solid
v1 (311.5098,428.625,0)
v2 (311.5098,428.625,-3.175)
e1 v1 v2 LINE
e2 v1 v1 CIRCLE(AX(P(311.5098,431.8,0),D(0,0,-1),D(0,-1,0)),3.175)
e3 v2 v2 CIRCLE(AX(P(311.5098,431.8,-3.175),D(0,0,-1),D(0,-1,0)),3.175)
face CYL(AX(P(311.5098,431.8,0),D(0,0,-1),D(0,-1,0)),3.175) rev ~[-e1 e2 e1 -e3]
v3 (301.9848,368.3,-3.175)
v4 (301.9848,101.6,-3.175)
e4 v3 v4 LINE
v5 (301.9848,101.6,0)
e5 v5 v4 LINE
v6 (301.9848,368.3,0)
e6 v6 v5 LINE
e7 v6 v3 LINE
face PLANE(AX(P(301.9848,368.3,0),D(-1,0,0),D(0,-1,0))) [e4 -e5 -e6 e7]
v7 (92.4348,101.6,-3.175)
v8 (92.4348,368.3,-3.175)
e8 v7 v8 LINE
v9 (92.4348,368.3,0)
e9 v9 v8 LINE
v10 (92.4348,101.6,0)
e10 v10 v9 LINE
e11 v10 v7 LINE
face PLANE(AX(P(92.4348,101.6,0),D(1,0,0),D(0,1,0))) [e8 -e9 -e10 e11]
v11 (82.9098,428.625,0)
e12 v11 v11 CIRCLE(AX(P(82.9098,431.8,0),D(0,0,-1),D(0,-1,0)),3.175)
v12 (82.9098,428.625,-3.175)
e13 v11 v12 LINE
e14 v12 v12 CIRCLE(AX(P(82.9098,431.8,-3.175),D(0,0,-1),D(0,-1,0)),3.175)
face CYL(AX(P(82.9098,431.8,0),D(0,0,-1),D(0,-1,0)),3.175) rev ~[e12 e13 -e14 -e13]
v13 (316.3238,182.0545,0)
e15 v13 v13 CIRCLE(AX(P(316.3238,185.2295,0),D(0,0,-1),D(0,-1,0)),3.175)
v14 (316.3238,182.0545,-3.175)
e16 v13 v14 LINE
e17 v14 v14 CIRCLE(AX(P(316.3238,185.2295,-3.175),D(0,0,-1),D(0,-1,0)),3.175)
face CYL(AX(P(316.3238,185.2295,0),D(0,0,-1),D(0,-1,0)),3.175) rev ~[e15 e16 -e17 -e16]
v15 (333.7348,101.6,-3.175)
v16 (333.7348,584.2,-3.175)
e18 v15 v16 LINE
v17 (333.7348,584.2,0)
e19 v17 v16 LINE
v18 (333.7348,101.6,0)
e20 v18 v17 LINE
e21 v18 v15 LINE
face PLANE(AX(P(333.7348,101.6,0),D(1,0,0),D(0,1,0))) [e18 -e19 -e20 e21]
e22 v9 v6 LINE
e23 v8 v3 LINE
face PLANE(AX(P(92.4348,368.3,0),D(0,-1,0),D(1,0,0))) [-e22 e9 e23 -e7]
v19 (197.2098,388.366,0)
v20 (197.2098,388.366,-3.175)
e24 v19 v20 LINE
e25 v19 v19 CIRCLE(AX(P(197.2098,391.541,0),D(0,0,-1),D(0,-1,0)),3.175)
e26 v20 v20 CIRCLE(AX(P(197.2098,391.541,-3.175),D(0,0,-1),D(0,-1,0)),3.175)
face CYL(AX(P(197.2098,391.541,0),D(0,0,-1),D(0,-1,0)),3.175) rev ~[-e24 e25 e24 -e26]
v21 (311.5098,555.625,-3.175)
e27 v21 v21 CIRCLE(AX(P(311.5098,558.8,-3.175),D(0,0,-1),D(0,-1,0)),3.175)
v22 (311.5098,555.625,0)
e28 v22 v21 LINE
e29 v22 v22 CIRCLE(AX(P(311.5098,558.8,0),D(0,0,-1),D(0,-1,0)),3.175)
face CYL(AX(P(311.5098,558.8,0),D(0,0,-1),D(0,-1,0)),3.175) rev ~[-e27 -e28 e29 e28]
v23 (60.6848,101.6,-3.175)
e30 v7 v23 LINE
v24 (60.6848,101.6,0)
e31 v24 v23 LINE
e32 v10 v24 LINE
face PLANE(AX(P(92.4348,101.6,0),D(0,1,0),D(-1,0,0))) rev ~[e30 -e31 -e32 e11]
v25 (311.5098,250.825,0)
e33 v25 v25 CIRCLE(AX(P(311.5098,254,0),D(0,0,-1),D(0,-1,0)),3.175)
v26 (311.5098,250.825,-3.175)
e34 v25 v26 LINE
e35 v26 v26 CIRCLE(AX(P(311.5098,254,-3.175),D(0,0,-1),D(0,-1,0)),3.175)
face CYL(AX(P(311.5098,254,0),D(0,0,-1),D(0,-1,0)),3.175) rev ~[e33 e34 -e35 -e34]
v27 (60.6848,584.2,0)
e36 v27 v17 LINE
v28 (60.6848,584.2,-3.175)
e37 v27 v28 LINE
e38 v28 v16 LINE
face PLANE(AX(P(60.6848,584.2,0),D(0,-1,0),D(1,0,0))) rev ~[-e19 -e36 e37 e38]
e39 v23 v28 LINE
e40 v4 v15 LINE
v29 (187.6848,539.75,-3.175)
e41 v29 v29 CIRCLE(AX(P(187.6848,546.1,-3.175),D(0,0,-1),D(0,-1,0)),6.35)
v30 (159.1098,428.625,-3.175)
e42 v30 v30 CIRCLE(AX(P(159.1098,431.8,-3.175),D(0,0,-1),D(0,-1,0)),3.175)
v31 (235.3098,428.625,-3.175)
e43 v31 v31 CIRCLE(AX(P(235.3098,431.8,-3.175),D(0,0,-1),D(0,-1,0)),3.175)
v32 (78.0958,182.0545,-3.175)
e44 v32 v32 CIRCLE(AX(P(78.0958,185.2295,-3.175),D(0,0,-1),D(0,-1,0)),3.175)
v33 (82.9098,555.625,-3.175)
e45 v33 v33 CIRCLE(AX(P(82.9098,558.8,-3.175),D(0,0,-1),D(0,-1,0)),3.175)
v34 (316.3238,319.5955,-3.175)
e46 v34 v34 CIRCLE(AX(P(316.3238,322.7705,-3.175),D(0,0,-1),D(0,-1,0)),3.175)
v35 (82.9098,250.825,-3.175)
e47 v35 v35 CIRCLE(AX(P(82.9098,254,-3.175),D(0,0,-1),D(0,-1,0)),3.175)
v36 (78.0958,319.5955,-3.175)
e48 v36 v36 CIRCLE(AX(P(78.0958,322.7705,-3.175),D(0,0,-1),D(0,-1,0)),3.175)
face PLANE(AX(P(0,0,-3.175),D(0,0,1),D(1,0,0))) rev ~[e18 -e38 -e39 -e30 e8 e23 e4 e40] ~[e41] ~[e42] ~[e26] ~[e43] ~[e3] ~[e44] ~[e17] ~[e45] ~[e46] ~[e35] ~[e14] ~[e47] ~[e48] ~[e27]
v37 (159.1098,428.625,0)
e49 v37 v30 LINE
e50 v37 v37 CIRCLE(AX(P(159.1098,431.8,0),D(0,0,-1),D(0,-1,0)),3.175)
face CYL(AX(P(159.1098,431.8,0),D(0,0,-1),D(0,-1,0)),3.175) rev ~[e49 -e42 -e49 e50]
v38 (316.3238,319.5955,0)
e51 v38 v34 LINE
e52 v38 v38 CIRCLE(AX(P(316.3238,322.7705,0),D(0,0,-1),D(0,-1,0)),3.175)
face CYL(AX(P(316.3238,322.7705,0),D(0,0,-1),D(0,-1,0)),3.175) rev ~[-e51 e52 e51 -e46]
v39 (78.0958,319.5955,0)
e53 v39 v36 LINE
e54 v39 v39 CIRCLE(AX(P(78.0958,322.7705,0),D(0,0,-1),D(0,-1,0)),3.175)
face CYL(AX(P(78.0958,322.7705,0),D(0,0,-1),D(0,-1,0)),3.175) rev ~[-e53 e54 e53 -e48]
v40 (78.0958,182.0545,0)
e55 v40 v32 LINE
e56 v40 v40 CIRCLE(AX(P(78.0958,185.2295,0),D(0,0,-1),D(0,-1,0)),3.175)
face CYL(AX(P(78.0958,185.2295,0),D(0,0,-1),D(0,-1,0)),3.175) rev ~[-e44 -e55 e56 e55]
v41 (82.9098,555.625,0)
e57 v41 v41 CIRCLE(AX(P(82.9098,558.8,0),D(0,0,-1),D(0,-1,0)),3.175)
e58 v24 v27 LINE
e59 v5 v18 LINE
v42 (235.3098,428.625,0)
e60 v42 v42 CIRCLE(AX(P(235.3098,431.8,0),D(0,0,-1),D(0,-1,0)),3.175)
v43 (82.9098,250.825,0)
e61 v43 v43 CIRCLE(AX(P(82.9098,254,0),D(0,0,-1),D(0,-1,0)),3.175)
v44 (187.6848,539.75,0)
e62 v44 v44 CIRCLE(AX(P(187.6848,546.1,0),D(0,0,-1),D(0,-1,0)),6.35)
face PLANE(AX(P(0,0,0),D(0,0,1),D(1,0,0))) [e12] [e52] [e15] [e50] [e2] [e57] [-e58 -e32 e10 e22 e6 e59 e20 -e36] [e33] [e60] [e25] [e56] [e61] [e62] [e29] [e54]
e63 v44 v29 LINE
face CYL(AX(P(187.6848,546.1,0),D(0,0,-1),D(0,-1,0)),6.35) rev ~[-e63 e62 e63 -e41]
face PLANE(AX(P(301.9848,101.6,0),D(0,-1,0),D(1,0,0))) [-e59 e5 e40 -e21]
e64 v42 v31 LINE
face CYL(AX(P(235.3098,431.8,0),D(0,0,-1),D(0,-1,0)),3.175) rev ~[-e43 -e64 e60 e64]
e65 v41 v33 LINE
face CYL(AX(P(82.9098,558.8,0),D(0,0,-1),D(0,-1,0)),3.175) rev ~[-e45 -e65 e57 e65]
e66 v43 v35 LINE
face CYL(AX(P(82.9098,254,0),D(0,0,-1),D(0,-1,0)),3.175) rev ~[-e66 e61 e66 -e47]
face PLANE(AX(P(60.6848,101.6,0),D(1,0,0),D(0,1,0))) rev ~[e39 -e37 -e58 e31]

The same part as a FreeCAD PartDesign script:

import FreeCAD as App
import Part
import Sketcher
Q = App.Units.Quantity

doc = App.newDocument("Part")
body = doc.addObject("PartDesign::Body", "Body")

# Sketch on XY plane
sketch1 = body.newObject("Sketcher::SketchObject", "Sketch")
sketch1.AttachmentSupport = (doc.getObject("XY_Plane"), [""])
sketch1.MapMode = "FlatFace"
sketch1.addGeometry([
    Part.LineSegment(App.Vector(301.9848, 101.6, 0), App.Vector(333.7348, 101.6, 0)),  # 0
    Part.LineSegment(App.Vector(333.7348, 101.6, 0), App.Vector(333.7348, 584.2, 0)),  # 1
    Part.LineSegment(App.Vector(333.7348, 584.2, 0), App.Vector(60.6848, 584.2, 0)),  # 2
    Part.LineSegment(App.Vector(60.6848, 584.2, 0), App.Vector(60.6848, 101.6, 0)),  # 3
    Part.LineSegment(App.Vector(60.6848, 101.6, 0), App.Vector(92.4348, 101.6, 0)),  # 4
    Part.LineSegment(App.Vector(92.4348, 101.6, 0), App.Vector(92.4348, 368.3, 0)),  # 5
    Part.LineSegment(App.Vector(92.4348, 368.3, 0), App.Vector(301.9848, 368.3, 0)),  # 6
    Part.LineSegment(App.Vector(301.9848, 368.3, 0), App.Vector(301.9848, 101.6, 0)),  # 7
], False)
sketch1.addConstraint([
    Sketcher.Constraint("Coincident", 0, 2, 1, 1),
    Sketcher.Constraint("Coincident", 1, 2, 2, 1),
    Sketcher.Constraint("Coincident", 2, 2, 3, 1),
    Sketcher.Constraint("Coincident", 3, 2, 4, 1),
    Sketcher.Constraint("Coincident", 4, 2, 5, 1),
    Sketcher.Constraint("Coincident", 5, 2, 6, 1),
    Sketcher.Constraint("Coincident", 6, 2, 7, 1),
    Sketcher.Constraint("Coincident", 7, 2, 0, 1),
    Sketcher.Constraint("Horizontal", 0),
    Sketcher.Constraint("Vertical", 1),
    Sketcher.Constraint("Horizontal", 2),
    Sketcher.Constraint("Vertical", 3),
    Sketcher.Constraint("Horizontal", 4),
    Sketcher.Constraint("Vertical", 5),
    Sketcher.Constraint("Horizontal", 6),
    Sketcher.Constraint("Vertical", 7),
    Sketcher.Constraint("Horizontal", 0, 2, 3, 2),
    Sketcher.Constraint("Equal", 0, 4),
    Sketcher.Constraint("DistanceY", 1, 1, 1, 2, Q("19 in")),
    Sketcher.Constraint("DistanceY", 5, 1, 5, 2, Q("10.5 in")),
    Sketcher.Constraint("DistanceX", 0, 1, 0, 2, Q("1.25 in")),
    Sketcher.Constraint("DistanceX", 2, 2, 2, 1, Q("10.75 in")),
    Sketcher.Constraint("DistanceY", -1, 1, 0, 2, Q("4 in")),
    Sketcher.Constraint("DistanceX", -1, 1, 0, 2, 333.7348),
])
pad1 = body.newObject("PartDesign::Pad", "Pad")
pad1.Profile = sketch1
pad1.Length = Q("0.125 in")
pad1.Reversed = True

# Sketch on XY plane
sketch2 = body.newObject("Sketcher::SketchObject", "Sketch001")
sketch2.AttachmentSupport = (doc.getObject("XY_Plane"), [""])
sketch2.MapMode = "FlatFace"
sketch2.addGeometry([
    Part.Circle(App.Vector(197.2098, 254, 0), App.Vector(0, 0, 1), 3.175),  # 0
    Part.Circle(App.Vector(197.2098, 391.541, 0), App.Vector(0, 0, 1), 3.175),  # 1
    Part.Circle(App.Vector(78.0958, 322.7705, 0), App.Vector(0, 0, 1), 3.175),  # 2
    Part.Circle(App.Vector(78.0958, 185.2295, 0), App.Vector(0, 0, 1), 3.175),  # 3
    Part.Circle(App.Vector(197.2098, 116.459, 0), App.Vector(0, 0, 1), 3.175),  # 4
    Part.Circle(App.Vector(316.3238, 185.2295, 0), App.Vector(0, 0, 1), 3.175),  # 5
    Part.Circle(App.Vector(316.3238, 322.7705, 0), App.Vector(0, 0, 1), 3.175),  # 6
], False)
sketch2.addConstraint([
    Sketcher.Constraint("Equal", 0, 1),
    Sketcher.Constraint("Equal", 1, 2),
    Sketcher.Constraint("Equal", 2, 3),
    Sketcher.Constraint("Equal", 3, 4),
    Sketcher.Constraint("Equal", 4, 5),
    Sketcher.Constraint("Equal", 5, 6),
    Sketcher.Constraint("Horizontal", 3, 3, 5, 3),
    Sketcher.Constraint("Horizontal", 2, 3, 6, 3),
    Sketcher.Constraint("Vertical", 0, 3, 1, 3),
    Sketcher.Constraint("Vertical", 2, 3, 3, 3),
    Sketcher.Constraint("Vertical", 1, 3, 4, 3),
    Sketcher.Constraint("Vertical", 5, 3, 6, 3),
    Sketcher.Constraint("Diameter", 0, Q("0.25 in")),
    Sketcher.Constraint("DistanceY", -1, 1, 0, 3, Q("10 in")),
    Sketcher.Constraint("DistanceY", 4, 3, 1, 3, Q("10.83 in")),
    Sketcher.Constraint("DistanceY", -1, 1, 1, 3, Q("15.415 in")),
    Sketcher.Constraint("DistanceY", 3, 3, 2, 3, Q("5.415 in")),
    Sketcher.Constraint("DistanceY", -1, 1, 2, 3, Q("12.7075 in")),
    Sketcher.Constraint("DistanceX", -1, 1, 5, 3, Q("12.4537 in")),
    Sketcher.Constraint("DistanceX", -1, 1, 0, 3, 197.2098),
    Sketcher.Constraint("DistanceX", -1, 1, 2, 3, 78.0958),
])
doc.recompute()
hole = body.newObject("PartDesign::Hole", "Hole")
hole.Profile = sketch2
hole.ThreadType = "None"
hole.Diameter = Q("0.25 in")
hole.DepthType = "Dimension"
hole.Depth = Q("1 in")
hole.DrillPoint = "Angled"
hole.DrillPointAngle = 118

# Sketch on XY plane
sketch3 = body.newObject("Sketcher::SketchObject", "Sketch002")
sketch3.AttachmentSupport = (doc.getObject("XY_Plane"), [""])
sketch3.MapMode = "FlatFace"
sketch3.addGeometry(Part.Circle(App.Vector(187.6848, 546.1, 0), App.Vector(0, 0, 1), 6.35), False)
sketch3.addConstraint([
    Sketcher.Constraint("Diameter", 0, Q("0.5 in")),
    Sketcher.Constraint("DistanceY", -1, 1, 0, 3, Q("21.5 in")),
    Sketcher.Constraint("DistanceX", -1, 1, 0, 3, 187.6848),
])
doc.recompute()
hole2 = body.newObject("PartDesign::Hole", "Hole001")
hole2.Profile = sketch3
hole2.ThreadType = "None"
hole2.Diameter = Q("0.5 in")
hole2.DepthType = "Dimension"
hole2.Depth = Q("1 in")
hole2.DrillPoint = "Angled"
hole2.DrillPointAngle = 118

# Sketch on XY plane
sketch4 = body.newObject("Sketcher::SketchObject", "Sketch003")
sketch4.AttachmentSupport = (doc.getObject("XY_Plane"), [""])
sketch4.MapMode = "FlatFace"
sketch4.addGeometry([
    Part.Circle(App.Vector(311.5098, 254, 0), App.Vector(0, 0, 1), 3.175),  # 0
    Part.Circle(App.Vector(311.5098, 558.8, 0), App.Vector(0, 0, 1), 3.175),  # 1
    Part.Circle(App.Vector(311.5098, 431.8, 0), App.Vector(0, 0, 1), 3.175),  # 2
    Part.Circle(App.Vector(82.9098, 558.8, 0), App.Vector(0, 0, 1), 3.175),  # 3
    Part.Circle(App.Vector(82.9098, 431.8, 0), App.Vector(0, 0, 1), 3.175),  # 4
    Part.Circle(App.Vector(82.9098, 254, 0), App.Vector(0, 0, 1), 3.175),  # 5
    Part.Circle(App.Vector(159.1098, 431.8, 0), App.Vector(0, 0, 1), 3.175),  # 6
    Part.Circle(App.Vector(235.3098, 431.8, 0), App.Vector(0, 0, 1), 3.175),  # 7
], False)
sketch4.addConstraint([
    Sketcher.Constraint("Equal", 0, 1),
    Sketcher.Constraint("Equal", 1, 2),
    Sketcher.Constraint("Equal", 2, 3),
    Sketcher.Constraint("Equal", 3, 4),
    Sketcher.Constraint("Equal", 4, 5),
    Sketcher.Constraint("Equal", 5, 6),
    Sketcher.Constraint("Equal", 6, 7),
    Sketcher.Constraint("Horizontal", 1, 3, 3, 3),
    Sketcher.Constraint("Horizontal", 2, 3, 4, 3),
    Sketcher.Constraint("Horizontal", 0, 3, 5, 3),
    Sketcher.Constraint("Horizontal", 4, 3, 6, 3),
    Sketcher.Constraint("Horizontal", 6, 3, 7, 3),
    Sketcher.Constraint("Vertical", 0, 3, 1, 3),
    Sketcher.Constraint("Vertical", 1, 3, 2, 3),
    Sketcher.Constraint("Vertical", 3, 3, 4, 3),
    Sketcher.Constraint("Vertical", 4, 3, 5, 3),
    Sketcher.Constraint("Diameter", 0, Q("0.25 in")),
    Sketcher.Constraint("DistanceY", -1, 1, 0, 3, Q("10 in")),
    Sketcher.Constraint("DistanceY", -1, 1, 1, 3, Q("22 in")),
    Sketcher.Constraint("DistanceY", -1, 1, 2, 3, Q("17 in")),
    Sketcher.Constraint("DistanceX", 3, 3, 1, 3, Q("9 in")),
    Sketcher.Constraint("DistanceX", 4, 3, 6, 3, Q("3 in")),
    Sketcher.Constraint("DistanceX", 7, 3, 2, 3, Q("3 in")),
    Sketcher.Constraint("DistanceX", -1, 1, 0, 3, 311.5098),
])
doc.recompute()
hole3 = body.newObject("PartDesign::Hole", "Hole002")
hole3.Profile = sketch4
hole3.ThreadType = "None"
hole3.Diameter = Q("0.25 in")
hole3.DepthType = "Dimension"
hole3.Depth = Q("1 in")
hole3.DrillPoint = "Angled"
hole3.DrillPointAngle = 118

doc.recompute()
